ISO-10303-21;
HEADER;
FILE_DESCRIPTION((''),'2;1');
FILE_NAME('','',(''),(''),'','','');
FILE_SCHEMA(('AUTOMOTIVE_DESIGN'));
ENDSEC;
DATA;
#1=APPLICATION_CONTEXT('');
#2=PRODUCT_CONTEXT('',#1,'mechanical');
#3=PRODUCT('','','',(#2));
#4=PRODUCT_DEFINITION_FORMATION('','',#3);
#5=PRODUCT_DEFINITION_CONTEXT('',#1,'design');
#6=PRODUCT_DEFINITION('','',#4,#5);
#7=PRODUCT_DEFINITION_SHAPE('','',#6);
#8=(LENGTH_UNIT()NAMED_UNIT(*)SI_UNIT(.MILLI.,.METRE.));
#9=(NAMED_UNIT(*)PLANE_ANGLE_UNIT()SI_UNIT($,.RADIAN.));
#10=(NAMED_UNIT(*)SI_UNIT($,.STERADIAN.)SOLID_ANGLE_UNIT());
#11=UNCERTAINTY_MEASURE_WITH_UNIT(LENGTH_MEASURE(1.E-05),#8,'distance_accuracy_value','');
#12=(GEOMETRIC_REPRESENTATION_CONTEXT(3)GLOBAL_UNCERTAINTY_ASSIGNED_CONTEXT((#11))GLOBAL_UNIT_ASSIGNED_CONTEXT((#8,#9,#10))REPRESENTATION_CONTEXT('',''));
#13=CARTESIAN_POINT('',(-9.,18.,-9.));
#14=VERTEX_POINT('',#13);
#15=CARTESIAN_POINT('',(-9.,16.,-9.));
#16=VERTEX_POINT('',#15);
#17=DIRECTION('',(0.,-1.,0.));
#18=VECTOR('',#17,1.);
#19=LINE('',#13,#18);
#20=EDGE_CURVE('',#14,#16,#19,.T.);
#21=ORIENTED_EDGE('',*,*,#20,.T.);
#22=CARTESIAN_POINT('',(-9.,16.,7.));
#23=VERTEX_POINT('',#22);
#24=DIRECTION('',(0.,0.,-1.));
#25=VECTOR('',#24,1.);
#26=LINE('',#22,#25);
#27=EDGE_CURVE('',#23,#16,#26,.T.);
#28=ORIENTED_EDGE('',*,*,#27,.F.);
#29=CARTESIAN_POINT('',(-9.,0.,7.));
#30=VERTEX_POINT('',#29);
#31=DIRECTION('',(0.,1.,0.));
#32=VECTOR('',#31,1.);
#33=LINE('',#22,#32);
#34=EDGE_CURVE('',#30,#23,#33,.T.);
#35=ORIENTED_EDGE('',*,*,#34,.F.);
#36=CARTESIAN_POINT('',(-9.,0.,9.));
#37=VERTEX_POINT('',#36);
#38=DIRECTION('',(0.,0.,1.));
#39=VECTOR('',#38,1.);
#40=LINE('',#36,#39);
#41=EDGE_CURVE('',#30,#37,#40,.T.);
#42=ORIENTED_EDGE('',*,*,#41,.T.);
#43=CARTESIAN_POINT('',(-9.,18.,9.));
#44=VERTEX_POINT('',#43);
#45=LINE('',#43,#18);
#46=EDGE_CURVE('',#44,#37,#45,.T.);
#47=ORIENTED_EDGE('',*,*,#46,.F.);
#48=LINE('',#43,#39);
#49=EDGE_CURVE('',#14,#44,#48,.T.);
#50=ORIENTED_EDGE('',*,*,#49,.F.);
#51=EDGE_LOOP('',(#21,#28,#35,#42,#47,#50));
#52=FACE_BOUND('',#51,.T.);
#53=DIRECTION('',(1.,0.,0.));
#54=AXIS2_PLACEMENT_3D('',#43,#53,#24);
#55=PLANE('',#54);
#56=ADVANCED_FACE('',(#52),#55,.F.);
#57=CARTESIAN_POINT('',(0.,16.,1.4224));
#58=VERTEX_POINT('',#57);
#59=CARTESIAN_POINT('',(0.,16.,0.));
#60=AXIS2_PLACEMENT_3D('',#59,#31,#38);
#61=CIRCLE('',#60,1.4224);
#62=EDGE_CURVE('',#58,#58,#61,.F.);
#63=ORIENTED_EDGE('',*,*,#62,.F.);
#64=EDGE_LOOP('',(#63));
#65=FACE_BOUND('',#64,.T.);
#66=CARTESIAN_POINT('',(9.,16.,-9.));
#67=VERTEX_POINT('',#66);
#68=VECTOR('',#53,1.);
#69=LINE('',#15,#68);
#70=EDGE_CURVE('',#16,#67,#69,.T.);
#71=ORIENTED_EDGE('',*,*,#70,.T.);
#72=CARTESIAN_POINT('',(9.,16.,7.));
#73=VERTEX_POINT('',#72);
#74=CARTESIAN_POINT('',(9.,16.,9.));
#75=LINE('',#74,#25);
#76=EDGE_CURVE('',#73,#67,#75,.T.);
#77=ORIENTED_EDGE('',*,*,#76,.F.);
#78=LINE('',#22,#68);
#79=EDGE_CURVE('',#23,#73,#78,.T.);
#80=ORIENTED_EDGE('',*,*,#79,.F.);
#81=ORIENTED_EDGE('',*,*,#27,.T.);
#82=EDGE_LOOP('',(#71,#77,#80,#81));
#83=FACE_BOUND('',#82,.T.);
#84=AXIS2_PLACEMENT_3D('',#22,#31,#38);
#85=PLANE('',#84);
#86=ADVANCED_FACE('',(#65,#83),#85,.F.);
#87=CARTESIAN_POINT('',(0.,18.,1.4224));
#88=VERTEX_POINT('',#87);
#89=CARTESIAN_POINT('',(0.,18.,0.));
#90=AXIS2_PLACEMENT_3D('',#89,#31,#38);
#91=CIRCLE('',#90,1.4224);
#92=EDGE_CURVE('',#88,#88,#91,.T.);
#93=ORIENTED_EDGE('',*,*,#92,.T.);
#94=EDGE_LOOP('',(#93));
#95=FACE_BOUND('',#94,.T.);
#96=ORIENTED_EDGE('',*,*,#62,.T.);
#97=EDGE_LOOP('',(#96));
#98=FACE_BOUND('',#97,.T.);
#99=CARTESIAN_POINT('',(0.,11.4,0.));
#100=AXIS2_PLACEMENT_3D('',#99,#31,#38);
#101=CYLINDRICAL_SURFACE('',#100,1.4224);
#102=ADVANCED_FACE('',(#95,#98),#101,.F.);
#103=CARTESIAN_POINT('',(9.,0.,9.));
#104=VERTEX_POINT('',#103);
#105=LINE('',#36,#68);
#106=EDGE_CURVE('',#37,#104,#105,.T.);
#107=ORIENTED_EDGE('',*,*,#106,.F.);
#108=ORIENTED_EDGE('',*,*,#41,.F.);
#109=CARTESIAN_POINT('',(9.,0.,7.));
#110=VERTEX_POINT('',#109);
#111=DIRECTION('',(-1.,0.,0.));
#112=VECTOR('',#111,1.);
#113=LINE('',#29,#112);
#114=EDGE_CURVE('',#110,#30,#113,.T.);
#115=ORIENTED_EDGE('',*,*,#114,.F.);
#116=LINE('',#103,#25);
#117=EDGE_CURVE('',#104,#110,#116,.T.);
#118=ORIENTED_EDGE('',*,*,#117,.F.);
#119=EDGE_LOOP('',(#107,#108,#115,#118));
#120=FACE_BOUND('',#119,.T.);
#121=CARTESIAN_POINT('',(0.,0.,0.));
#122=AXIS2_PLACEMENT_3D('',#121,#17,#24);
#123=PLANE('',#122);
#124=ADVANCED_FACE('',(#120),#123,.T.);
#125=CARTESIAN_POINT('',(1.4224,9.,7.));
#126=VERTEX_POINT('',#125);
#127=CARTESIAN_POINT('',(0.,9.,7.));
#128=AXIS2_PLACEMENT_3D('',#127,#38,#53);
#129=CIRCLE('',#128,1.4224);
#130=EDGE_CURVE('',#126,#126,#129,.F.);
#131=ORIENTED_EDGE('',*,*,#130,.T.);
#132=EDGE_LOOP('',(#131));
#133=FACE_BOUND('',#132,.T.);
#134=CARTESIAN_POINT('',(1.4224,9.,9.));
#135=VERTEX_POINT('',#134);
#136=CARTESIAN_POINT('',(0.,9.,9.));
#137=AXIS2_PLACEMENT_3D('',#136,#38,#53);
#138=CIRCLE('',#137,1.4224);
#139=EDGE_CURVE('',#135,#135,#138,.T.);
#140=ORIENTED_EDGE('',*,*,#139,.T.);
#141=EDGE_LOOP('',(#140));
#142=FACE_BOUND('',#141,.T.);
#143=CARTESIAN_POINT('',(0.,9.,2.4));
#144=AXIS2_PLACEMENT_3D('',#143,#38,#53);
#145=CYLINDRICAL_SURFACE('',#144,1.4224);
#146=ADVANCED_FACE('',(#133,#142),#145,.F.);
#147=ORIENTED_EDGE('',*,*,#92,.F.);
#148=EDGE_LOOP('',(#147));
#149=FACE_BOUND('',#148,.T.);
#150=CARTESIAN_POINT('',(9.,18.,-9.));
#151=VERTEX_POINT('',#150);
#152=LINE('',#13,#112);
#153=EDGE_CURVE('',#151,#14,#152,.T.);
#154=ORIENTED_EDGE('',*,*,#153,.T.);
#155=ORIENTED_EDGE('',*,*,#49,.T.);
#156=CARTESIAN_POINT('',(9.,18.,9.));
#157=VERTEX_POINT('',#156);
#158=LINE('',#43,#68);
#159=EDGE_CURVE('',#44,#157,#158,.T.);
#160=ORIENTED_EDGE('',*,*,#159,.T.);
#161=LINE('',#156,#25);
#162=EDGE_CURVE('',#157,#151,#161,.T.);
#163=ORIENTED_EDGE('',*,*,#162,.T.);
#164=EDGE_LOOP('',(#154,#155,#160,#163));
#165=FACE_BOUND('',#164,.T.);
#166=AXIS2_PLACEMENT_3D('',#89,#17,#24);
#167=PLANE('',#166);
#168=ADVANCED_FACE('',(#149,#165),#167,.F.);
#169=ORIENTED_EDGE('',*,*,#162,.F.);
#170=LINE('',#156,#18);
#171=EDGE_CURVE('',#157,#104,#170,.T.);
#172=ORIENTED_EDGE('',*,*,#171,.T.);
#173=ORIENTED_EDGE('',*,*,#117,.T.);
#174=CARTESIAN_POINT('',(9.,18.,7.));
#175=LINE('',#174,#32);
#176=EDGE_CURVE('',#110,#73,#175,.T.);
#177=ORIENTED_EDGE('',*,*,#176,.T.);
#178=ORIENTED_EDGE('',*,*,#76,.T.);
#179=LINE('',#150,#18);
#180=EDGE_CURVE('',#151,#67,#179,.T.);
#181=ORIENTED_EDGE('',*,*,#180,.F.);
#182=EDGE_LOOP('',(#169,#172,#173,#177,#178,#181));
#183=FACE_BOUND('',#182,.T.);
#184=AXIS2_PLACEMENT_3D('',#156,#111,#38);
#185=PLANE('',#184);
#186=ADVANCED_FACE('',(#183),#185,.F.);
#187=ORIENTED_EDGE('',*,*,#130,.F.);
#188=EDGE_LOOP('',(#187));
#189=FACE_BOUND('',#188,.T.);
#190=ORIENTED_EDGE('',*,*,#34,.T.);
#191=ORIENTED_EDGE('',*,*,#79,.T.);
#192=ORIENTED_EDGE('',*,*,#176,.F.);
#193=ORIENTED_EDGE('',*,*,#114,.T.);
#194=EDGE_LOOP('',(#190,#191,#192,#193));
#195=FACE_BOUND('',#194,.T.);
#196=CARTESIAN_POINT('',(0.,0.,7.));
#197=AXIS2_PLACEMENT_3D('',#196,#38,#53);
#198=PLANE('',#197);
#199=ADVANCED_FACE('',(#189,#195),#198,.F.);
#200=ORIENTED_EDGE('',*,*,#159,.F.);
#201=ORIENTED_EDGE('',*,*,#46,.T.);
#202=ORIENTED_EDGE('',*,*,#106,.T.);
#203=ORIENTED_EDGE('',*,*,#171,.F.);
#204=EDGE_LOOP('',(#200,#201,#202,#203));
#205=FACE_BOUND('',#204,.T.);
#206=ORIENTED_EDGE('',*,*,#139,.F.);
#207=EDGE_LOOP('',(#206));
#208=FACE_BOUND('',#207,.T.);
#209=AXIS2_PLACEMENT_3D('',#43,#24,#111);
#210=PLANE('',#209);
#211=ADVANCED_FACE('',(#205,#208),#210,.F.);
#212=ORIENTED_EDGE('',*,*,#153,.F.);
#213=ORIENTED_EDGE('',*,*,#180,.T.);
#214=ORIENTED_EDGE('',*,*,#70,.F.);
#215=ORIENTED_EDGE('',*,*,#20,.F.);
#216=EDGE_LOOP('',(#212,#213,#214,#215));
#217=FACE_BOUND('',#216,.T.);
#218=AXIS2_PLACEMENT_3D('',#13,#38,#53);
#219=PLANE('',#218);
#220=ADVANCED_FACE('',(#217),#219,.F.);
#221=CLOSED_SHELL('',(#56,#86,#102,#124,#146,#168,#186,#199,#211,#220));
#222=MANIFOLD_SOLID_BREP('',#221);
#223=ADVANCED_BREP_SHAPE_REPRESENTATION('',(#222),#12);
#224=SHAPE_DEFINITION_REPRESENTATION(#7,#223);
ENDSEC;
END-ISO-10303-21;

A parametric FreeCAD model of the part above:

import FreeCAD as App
import Part
import Sketcher

V = App.Vector
Q = App.Units.Quantity

doc = App.newDocument("Part")
body = doc.addObject("PartDesign::Body", "Body")

sketch1 = body.newObject("Sketcher::SketchObject", "Sketch")
sketch1.AttachmentSupport = (doc.getObject("XZ_Plane"), [""])
sketch1.MapMode = "FlatFace"
sketch1.addGeometry(Part.LineSegment(V(-9, -9, 0), V(-9, 9, 0)), False)
sketch1.addGeometry(Part.LineSegment(V(-9, 9, 0), V(9, 9, 0)), False)
sketch1.addGeometry(Part.LineSegment(V(9, 9, 0), V(9, -9, 0)), False)
sketch1.addGeometry(Part.LineSegment(V(9, -9, 0), V(-9, -9, 0)), False)
sketch1.addConstraint(Sketcher.Constraint("Coincident", 0, 2, 1, 1))
sketch1.addConstraint(Sketcher.Constraint("Coincident", 1, 2, 2, 1))
sketch1.addConstraint(Sketcher.Constraint("Coincident", 2, 2, 3, 1))
sketch1.addConstraint(Sketcher.Constraint("Coincident", 3, 2, 0, 1))
sketch1.addConstraint(Sketcher.Constraint("Vertical", 0))
sketch1.addConstraint(Sketcher.Constraint("Horizontal", 1))
sketch1.addConstraint(Sketcher.Constraint("Vertical", 2))
sketch1.addConstraint(Sketcher.Constraint("Horizontal", 3))
sketch1.addConstraint(Sketcher.Constraint("Symmetric", 0, 2, 2, 2, -1, 1))
sketch1.addConstraint(Sketcher.Constraint("Equal", 3, 0))
sketch1.addConstraint(Sketcher.Constraint("DistanceX", 1, 1, 1, 2, Q("18 mm")))
pad1 = body.newObject("PartDesign::Pad", "Pad")
pad1.Profile = sketch1
pad1.Length = 18
pad1.Reversed = True

sketch2 = body.newObject("Sketcher::SketchObject", "Sketch001")
sketch2.AttachmentSupport = (doc.getObject("XZ_Plane"), [""])
sketch2.MapMode = "FlatFace"
sketch2.AttachmentOffset = App.Placement(V(0, 0, -18), App.Rotation())
sketch2.addGeometry(Part.Circle(V(0, 0, 0), V(0, 0, 1), 1.4224), False)
sketch2.addConstraint(Sketcher.Constraint("Coincident", 0, 3, -1, 1))
sketch2.addConstraint(Sketcher.Constraint("Diameter", 0, Q("2.8448 mm")))
pocket1 = body.newObject("PartDesign::Pocket", "Pocket")
pocket1.Profile = sketch2
pocket1.Length = 6.6
pocket1.Reversed = True

sketch3 = body.newObject("Sketcher::SketchObject", "Sketch002")
sketch3.AttachmentSupport = (doc.getObject("YZ_Plane"), [""])
sketch3.MapMode = "FlatFace"
sketch3.AttachmentOffset = App.Placement(V(0, 0, 9), App.Rotation())
sketch3.addGeometry(Part.Circle(V(9, 0, 0), V(0, 0, 1), 1.4224), False)
sketch3.addConstraint(Sketcher.Constraint("PointOnObject", 0, 3, -1))
sketch3.addConstraint(Sketcher.Constraint("DistanceX", -1, 1, 0, 3, Q("9 mm")))
sketch3.addConstraint(Sketcher.Constraint("Diameter", 0, Q("2.8448 mm")))
pocket2 = body.newObject("PartDesign::Pocket", "Pocket001")
pocket2.Profile = sketch3
pocket2.Length = 6.6

sketch4 = body.newObject("Sketcher::SketchObject", "Sketch003")
sketch4.AttachmentSupport = (doc.getObject("XY_Plane"), [""])
sketch4.MapMode = "FlatFace"
sketch4.AttachmentOffset = App.Placement(V(0, 0, 9), App.Rotation())
sketch4.addGeometry(Part.Circle(V(0, 9, 0), V(0, 0, 1), 1.4224), False)
sketch4.addConstraint(Sketcher.Constraint("PointOnObject", 0, 3, -2))
sketch4.addConstraint(Sketcher.Constraint("DistanceY", -1, 1, 0, 3, Q("9 mm")))
sketch4.addConstraint(Sketcher.Constraint("Diameter", 0, Q("2.8448 mm")))
pocket3 = body.newObject("PartDesign::Pocket", "Pocket002")
pocket3.Profile = sketch4
pocket3.Length = 6.6

sketch5 = body.newObject("Sketcher::SketchObject", "Sketch004")
sketch5.AttachmentSupport = (doc.getObject("XY_Plane"), [""])
sketch5.MapMode = "FlatFace"
sketch5.AttachmentOffset = App.Placement(V(0, 0, -9), App.Rotation())
sketch5.addGeometry(Part.LineSegment(V(7, 16, 0), V(7, 0, 0)), False)
sketch5.addGeometry(Part.LineSegment(V(7, 0, 0), V(-9, 0, 0)), False)
sketch5.addGeometry(Part.LineSegment(V(-9, 0, 0), V(-9, 16, 0)), False)
sketch5.addGeometry(Part.LineSegment(V(-9, 16, 0), V(7, 16, 0)), False)
sketch5.addConstraint(Sketcher.Constraint("Coincident", 0, 2, 1, 1))
sketch5.addConstraint(Sketcher.Constraint("Coincident", 1, 2, 2, 1))
sketch5.addConstraint(Sketcher.Constraint("Coincident", 2, 2, 3, 1))
sketch5.addConstraint(Sketcher.Constraint("Coincident", 3, 2, 0, 1))
sketch5.addConstraint(Sketcher.Constraint("Vertical", 0))
sketch5.addConstraint(Sketcher.Constraint("Horizontal", 1))
sketch5.addConstraint(Sketcher.Constraint("Vertical", 2))
sketch5.addConstraint(Sketcher.Constraint("Horizontal", 3))
sketch5.addConstraint(Sketcher.Constraint("PointOnObject", 0, 2, -1))
sketch5.addConstraint(Sketcher.Constraint("Equal", 3, 0))
sketch5.addConstraint(Sketcher.Constraint("DistanceX", 1, 2, 1, 1, Q("16 mm")))
sketch5.addConstraint(Sketcher.Constraint("DistanceX", -1, 1, 0, 2, Q("7 mm")))
pocket4 = body.newObject("PartDesign::Pocket", "Pocket003")
pocket4.Profile = sketch5
pocket4.Length = 16
pocket4.Reversed = True

sketch6 = body.newObject("Sketcher::SketchObject", "Sketch005")
sketch6.AttachmentSupport = (doc.getObject("YZ_Plane"), [""])
sketch6.MapMode = "FlatFace"
sketch6.AttachmentOffset = App.Placement(V(0, 0, 7), App.Rotation())
sketch6.addGeometry(Part.LineSegment(V(16, -9, 0), V(0, -9, 0)), False)
sketch6.addGeometry(Part.LineSegment(V(0, -9, 0), V(0, 7, 0)), False)
sketch6.addGeometry(Part.LineSegment(V(0, 7, 0), V(16, 7, 0)), False)
sketch6.addGeometry(Part.LineSegment(V(16, 7, 0), V(16, -9, 0)), False)
sketch6.addConstraint(Sketcher.Constraint("Coincident", 0, 2, 1, 1))
sketch6.addConstraint(Sketcher.Constraint("Coincident", 1, 2, 2, 1))
sketch6.addConstraint(Sketcher.Constraint("Coincident", 2, 2, 3, 1))
sketch6.addConstraint(Sketcher.Constraint("Coincident", 3, 2, 0, 1))
sketch6.addConstraint(Sketcher.Constraint("Horizontal", 0))
sketch6.addConstraint(Sketcher.Constraint("Vertical", 1))
sketch6.addConstraint(Sketcher.Constraint("Horizontal", 2))
sketch6.addConstraint(Sketcher.Constraint("Vertical", 3))
sketch6.addConstraint(Sketcher.Constraint("PointOnObject", 0, 2, -2))
sketch6.addConstraint(Sketcher.Constraint("Equal", 2, 1))
sketch6.addConstraint(Sketcher.Constraint("DistanceX", 0, 2, 0, 1, Q("16 mm")))
sketch6.addConstraint(Sketcher.Constraint("DistanceY", 0, 2, -1, 1, Q("9 mm")))
pocket5 = body.newObject("PartDesign::Pocket", "Pocket004")
pocket5.Profile = sketch6
pocket5.Length = 10
pocket5.Reversed = True

doc.recompute()
